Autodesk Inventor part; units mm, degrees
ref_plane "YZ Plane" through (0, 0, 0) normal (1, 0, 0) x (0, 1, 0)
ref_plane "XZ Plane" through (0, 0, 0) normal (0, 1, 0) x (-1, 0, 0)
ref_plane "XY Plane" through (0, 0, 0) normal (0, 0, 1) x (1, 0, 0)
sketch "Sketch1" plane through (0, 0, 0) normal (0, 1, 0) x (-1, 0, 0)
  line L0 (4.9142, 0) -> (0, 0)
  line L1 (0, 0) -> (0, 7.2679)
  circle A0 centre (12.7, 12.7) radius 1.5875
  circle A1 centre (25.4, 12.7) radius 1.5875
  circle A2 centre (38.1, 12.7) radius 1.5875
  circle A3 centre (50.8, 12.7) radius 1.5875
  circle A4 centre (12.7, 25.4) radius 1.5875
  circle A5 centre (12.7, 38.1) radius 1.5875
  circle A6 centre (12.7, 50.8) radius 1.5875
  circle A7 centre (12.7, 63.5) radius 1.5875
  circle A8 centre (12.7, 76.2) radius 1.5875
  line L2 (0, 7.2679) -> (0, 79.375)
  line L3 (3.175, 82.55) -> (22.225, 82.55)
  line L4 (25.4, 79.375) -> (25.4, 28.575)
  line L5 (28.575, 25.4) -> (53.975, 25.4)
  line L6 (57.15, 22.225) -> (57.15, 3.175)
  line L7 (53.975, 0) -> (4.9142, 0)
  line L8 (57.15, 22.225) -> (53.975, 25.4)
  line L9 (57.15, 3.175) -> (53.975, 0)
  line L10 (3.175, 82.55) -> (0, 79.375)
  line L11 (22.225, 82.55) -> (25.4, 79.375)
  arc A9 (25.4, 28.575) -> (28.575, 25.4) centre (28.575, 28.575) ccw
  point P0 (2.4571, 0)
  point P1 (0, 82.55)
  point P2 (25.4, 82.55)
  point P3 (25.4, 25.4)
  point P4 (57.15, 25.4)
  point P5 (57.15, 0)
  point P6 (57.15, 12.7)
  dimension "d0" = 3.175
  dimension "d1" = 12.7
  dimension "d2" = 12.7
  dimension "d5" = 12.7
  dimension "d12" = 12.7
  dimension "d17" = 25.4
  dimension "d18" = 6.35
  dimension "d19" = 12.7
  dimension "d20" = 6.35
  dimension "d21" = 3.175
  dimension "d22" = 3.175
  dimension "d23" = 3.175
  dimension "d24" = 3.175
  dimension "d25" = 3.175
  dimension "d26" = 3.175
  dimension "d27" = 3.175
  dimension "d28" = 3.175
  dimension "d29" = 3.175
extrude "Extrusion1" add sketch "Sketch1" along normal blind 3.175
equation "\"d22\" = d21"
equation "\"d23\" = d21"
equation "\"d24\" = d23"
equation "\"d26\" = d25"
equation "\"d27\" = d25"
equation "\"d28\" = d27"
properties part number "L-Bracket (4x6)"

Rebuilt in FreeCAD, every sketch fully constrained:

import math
import FreeCAD as App
import Part
import Sketcher
Q = App.Units.Quantity

doc = App.newDocument("Part")
params = doc.addObject("Spreadsheet::Sheet", "Params")
for row, (alias, value) in enumerate([
    ("sketch1_width", "1 in"),
    ("sketch1_diameter", "0.125 in"),
    ("sketch1_radius", "0.125 in"),
    ("sketch1_height", "2 in"),
    ("pad1_length", "0.125 in"),
], start=1):
    params.set(f"A{row}", alias)
    params.set(f"B{row}", "=" + value)
    params.setAlias(f"B{row}", alias)

body = doc.addObject("PartDesign::Body", "Body")

sketch1 = body.newObject("Sketcher::SketchObject", "Sketch")
sketch1.AttachmentSupport = (doc.getObject("XZ_Plane"), [""])
sketch1.MapMode = "FlatFace"
sketch1.addGeometry(Part.LineSegment(App.Vector(0, 0, 0), App.Vector(-54, 0, 0)), False)
sketch1.addGeometry(Part.LineSegment(App.Vector(-54, 0, 0), App.Vector(-57.1, 3.2, 0)), False)
sketch1.addGeometry(Part.LineSegment(App.Vector(-57.1, 3.2, 0), App.Vector(-57.1, 22.2, 0)), False)
sketch1.addGeometry(Part.LineSegment(App.Vector(-57.1, 22.2, 0), App.Vector(-54, 25.4, 0)), False)
sketch1.addGeometry(Part.LineSegment(App.Vector(-54, 25.4, 0), App.Vector(-28.6, 25.4, 0)), False)
sketch1.addGeometry(Part.ArcOfCircle(Part.Circle(App.Vector(-28.6, 28.6, 0), App.Vector(0, 0, 1), 3.2), math.radians(-90), math.radians(0)), False)
sketch1.addGeometry(Part.LineSegment(App.Vector(-25.4, 28.6, 0), App.Vector(-25.4, 79.4, 0)), False)
sketch1.addGeometry(Part.LineSegment(App.Vector(-25.4, 79.4, 0), App.Vector(-22.2, 82.5, 0)), False)
sketch1.addGeometry(Part.LineSegment(App.Vector(-22.2, 82.5, 0), App.Vector(-3.2, 82.5, 0)), False)
sketch1.addGeometry(Part.LineSegment(App.Vector(-3.2, 82.5, 0), App.Vector(0, 79.4, 0)), False)
sketch1.addGeometry(Part.LineSegment(App.Vector(0, 79.4, 0), App.Vector(0, 0, 0)), False)
sketch1.addGeometry(Part.Circle(App.Vector(-12.7, 12.7, 0), App.Vector(0, 0, 1), 1.6), False)
sketch1.addGeometry(Part.Circle(App.Vector(-25.4, 12.7, 0), App.Vector(0, 0, 1), 1.6), False)
sketch1.addGeometry(Part.Circle(App.Vector(-12.7, 25.4, 0), App.Vector(0, 0, 1), 1.6), False)
sketch1.addGeometry(Part.Circle(App.Vector(-12.7, 38.1, 0), App.Vector(0, 0, 1), 1.6), False)
sketch1.addGeometry(Part.Circle(App.Vector(-38.1, 12.7, 0), App.Vector(0, 0, 1), 1.6), False)
sketch1.addGeometry(Part.Circle(App.Vector(-50.8, 12.7, 0), App.Vector(0, 0, 1), 1.6), False)
sketch1.addGeometry(Part.Circle(App.Vector(-12.7, 50.8, 0), App.Vector(0, 0, 1), 1.6), False)
sketch1.addGeometry(Part.Circle(App.Vector(-12.7, 63.5, 0), App.Vector(0, 0, 1), 1.6), False)
sketch1.addGeometry(Part.Circle(App.Vector(-12.7, 76.2, 0), App.Vector(0, 0, 1), 1.6), False)
sketch1.addConstraint(Sketcher.Constraint("Coincident", 0, 2, 1, 1))
sketch1.addConstraint(Sketcher.Constraint("Coincident", 1, 2, 2, 1))
sketch1.addConstraint(Sketcher.Constraint("Coincident", 2, 2, 3, 1))
sketch1.addConstraint(Sketcher.Constraint("Coincident", 3, 2, 4, 1))
sketch1.addConstraint(Sketcher.Constraint("Tangent", 4, 2, 5, 1))
sketch1.addConstraint(Sketcher.Constraint("Tangent", 5, 2, 6, 1))
sketch1.addConstraint(Sketcher.Constraint("Coincident", 6, 2, 7, 1))
sketch1.addConstraint(Sketcher.Constraint("Coincident", 7, 2, 8, 1))
sketch1.addConstraint(Sketcher.Constraint("Coincident", 8, 2, 9, 1))
sketch1.addConstraint(Sketcher.Constraint("Coincident", 9, 2, 10, 1))
sketch1.addConstraint(Sketcher.Constraint("Coincident", 10, 2, 0, 1))
sketch1.addConstraint(Sketcher.Constraint("Horizontal", 0))
sketch1.addConstraint(Sketcher.Constraint("Vertical", 2))
sketch1.addConstraint(Sketcher.Constraint("Horizontal", 4))
sketch1.addConstraint(Sketcher.Constraint("Vertical", 6))
sketch1.addConstraint(Sketcher.Constraint("Horizontal", 8))
sketch1.addConstraint(Sketcher.Constraint("Vertical", 10))
sketch1.addConstraint(Sketcher.Constraint("Coincident", 10, 2, -1, 1))
sketch1.addConstraint(Sketcher.Constraint("Equal", 11, 12))
sketch1.addConstraint(Sketcher.Constraint("Equal", 12, 13))
sketch1.addConstraint(Sketcher.Constraint("Equal", 13, 14))
sketch1.addConstraint(Sketcher.Constraint("Equal", 14, 15))
sketch1.addConstraint(Sketcher.Constraint("Equal", 15, 16))
sketch1.addConstraint(Sketcher.Constraint("Equal", 16, 17))
sketch1.addConstraint(Sketcher.Constraint("Equal", 17, 18))
sketch1.addConstraint(Sketcher.Constraint("Equal", 18, 19))
sketch1.addConstraint(Sketcher.Constraint("Perpendicular", 1, 3))
sketch1.addConstraint(Sketcher.Constraint("Parallel", 3, 7))
sketch1.addConstraint(Sketcher.Constraint("Perpendicular", 7, 9))
sketch1.addConstraint(Sketcher.Constraint("Horizontal", 11, 3, 12, 3))
sketch1.addConstraint(Sketcher.Constraint("Horizontal", 12, 3, 15, 3))
sketch1.addConstraint(Sketcher.Constraint("Horizontal", 15, 3, 16, 3))
sketch1.addConstraint(Sketcher.Constraint("Horizontal", 13, 3, 3, 2))
sketch1.addConstraint(Sketcher.Constraint("Horizontal", 6, 2, 9, 2))
sketch1.addConstraint(Sketcher.Constraint("Vertical", 11, 3, 13, 3))
sketch1.addConstraint(Sketcher.Constraint("Vertical", 13, 3, 14, 3))
sketch1.addConstraint(Sketcher.Constraint("Vertical", 14, 3, 17, 3))
sketch1.addConstraint(Sketcher.Constraint("Vertical", 17, 3, 18, 3))
sketch1.addConstraint(Sketcher.Constraint("Vertical", 18, 3, 19, 3))
sketch1.addConstraint(Sketcher.Constraint("Vertical", 0, 2, 3, 2))
sketch1.addConstraint(Sketcher.Constraint("Vertical", 12, 3, 5, 2))
sketch1.addConstraint(Sketcher.Constraint("Equal", 8, 2))
sketch1.addConstraint(Sketcher.Constraint("Equal", 1, 3))
sketch1.addConstraint(Sketcher.Constraint("Equal", 3, 7))
sketch1.addConstraint(Sketcher.Constraint("DistanceX", 4, 1, 4, 2, Q("1 in")))
sketch1.addConstraint(Sketcher.Constraint("Diameter", 11, Q("0.125 in")))
sketch1.addConstraint(Sketcher.Constraint("DistanceX", 12, 3, -1, 1, Q("1 in")))
sketch1.addConstraint(Sketcher.Constraint("Radius", 5, Q("0.125 in")))
sketch1.addConstraint(Sketcher.Constraint("DistanceY", 11, 3, 14, 3, Q("1 in")))
sketch1.addConstraint(Sketcher.Constraint("DistanceX", 15, 3, 11, 3, Q("1 in")))
sketch1.addConstraint(Sketcher.Constraint("DistanceX", 16, 3, 12, 3, Q("1 in")))
sketch1.addConstraint(Sketcher.Constraint("DistanceY", 13, 3, 17, 3, Q("1 in")))
sketch1.addConstraint(Sketcher.Constraint("DistanceY", 14, 3, 18, 3, Q("1 in")))
sketch1.addConstraint(Sketcher.Constraint("DistanceY", 17, 3, 19, 3, Q("1 in")))
sketch1.addConstraint(Sketcher.Constraint("DistanceY", 1, 2, 5, 3, Q("1 in")))
sketch1.addConstraint(Sketcher.Constraint("DistanceX", 11, 3, -1, 1, Q("0.5 in")))
sketch1.addConstraint(Sketcher.Constraint("DistanceY", -1, 1, 11, 3, Q("0.5 in")))
sketch1.addConstraint(Sketcher.Constraint("DistanceY", 6, 1, 6, 2, Q("2 in")))
sketch1.setExpression("Constraints[44]", "Params.sketch1_width")
sketch1.setExpression("Constraints[45]", "Params.sketch1_diameter")
sketch1.setExpression("Constraints[47]", "Params.sketch1_radius")
sketch1.setExpression("Constraints[57]", "Params.sketch1_height")
pad1 = body.newObject("PartDesign::Pad", "Pad")
pad1.Profile = sketch1
pad1.setExpression("Length", "Params.pad1_length")
pad1.Reversed = True

doc.recompute()
